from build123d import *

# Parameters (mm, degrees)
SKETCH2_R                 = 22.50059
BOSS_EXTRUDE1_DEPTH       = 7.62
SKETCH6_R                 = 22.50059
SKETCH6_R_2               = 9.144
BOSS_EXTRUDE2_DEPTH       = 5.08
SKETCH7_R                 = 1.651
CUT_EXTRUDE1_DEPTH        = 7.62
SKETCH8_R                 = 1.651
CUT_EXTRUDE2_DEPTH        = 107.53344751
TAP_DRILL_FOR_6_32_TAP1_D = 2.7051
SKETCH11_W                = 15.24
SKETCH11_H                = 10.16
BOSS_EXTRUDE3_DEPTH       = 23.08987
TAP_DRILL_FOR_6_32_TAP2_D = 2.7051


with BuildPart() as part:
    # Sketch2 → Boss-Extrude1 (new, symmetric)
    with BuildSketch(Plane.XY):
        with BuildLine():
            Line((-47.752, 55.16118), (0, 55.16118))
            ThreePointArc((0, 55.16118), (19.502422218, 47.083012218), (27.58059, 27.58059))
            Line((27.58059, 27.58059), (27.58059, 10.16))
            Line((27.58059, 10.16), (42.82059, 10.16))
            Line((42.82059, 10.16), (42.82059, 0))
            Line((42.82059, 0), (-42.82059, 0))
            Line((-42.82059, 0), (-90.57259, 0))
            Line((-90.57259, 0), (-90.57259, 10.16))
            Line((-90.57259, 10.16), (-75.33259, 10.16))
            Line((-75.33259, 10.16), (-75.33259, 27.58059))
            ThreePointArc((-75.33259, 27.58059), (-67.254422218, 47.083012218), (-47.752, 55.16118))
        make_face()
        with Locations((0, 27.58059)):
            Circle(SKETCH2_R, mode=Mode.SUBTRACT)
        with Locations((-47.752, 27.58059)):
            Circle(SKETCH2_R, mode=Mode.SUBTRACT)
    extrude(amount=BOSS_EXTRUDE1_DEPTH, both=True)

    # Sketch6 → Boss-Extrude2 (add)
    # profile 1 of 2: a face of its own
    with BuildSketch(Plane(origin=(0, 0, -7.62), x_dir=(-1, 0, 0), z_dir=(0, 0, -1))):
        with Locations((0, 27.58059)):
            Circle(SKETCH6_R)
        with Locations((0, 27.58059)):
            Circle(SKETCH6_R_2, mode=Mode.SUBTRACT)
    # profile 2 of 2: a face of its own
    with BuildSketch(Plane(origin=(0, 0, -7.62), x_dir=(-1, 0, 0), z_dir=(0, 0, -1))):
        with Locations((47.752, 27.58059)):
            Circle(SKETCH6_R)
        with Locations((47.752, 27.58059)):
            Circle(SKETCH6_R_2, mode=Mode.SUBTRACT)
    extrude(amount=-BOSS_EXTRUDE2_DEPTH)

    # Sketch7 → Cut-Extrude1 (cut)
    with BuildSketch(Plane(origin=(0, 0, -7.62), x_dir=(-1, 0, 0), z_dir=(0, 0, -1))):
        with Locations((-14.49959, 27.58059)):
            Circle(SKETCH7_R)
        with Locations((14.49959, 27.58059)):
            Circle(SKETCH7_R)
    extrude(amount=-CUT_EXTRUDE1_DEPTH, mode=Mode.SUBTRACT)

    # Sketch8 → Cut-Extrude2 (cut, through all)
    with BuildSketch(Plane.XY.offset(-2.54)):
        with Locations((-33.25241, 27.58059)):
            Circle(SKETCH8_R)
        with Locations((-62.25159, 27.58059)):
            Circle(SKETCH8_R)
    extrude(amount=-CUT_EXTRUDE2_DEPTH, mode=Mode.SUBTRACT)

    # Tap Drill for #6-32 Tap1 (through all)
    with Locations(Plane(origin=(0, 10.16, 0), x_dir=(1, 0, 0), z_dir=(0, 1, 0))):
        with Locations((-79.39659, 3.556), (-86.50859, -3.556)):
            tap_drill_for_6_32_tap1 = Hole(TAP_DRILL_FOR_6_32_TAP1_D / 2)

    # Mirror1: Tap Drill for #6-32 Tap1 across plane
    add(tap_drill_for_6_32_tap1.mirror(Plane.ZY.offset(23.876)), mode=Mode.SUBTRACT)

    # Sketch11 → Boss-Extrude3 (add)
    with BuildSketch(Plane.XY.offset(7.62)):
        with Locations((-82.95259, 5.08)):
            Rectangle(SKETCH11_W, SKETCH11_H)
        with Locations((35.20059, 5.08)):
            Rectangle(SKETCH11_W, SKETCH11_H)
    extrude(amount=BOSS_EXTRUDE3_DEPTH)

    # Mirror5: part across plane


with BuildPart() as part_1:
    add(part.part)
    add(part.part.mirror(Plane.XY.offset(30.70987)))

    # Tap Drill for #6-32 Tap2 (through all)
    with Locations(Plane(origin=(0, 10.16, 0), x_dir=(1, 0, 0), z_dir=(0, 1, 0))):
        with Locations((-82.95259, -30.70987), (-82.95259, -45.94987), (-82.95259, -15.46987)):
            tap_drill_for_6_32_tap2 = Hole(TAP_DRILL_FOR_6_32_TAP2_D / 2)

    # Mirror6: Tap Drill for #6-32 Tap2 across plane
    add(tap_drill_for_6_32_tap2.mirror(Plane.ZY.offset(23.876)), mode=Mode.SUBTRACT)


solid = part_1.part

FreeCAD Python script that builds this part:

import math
import FreeCAD as App
import Part
import Sketcher

V = App.Vector
Q = App.Units.Quantity


def add_polygon(sketch, points):
    """Adds a closed chain of lines whose ends are joined by coincident constraints."""
    first, n = sketch.GeometryCount, len(points)
    for a, b in zip(points, points[1:] + points[:1]):
        sketch.addGeometry(Part.LineSegment(App.Vector(*a, 0), App.Vector(*b, 0)), False)
    for i in range(n):
        sketch.addConstraint(Sketcher.Constraint("Coincident", first + i, 2, first + (i + 1) % n, 1))

doc = App.newDocument("Part")
body = doc.addObject("PartDesign::Body", "Body")

sketch1 = body.newObject("Sketcher::SketchObject", "Sketch")
sketch1.AttachmentSupport = (doc.getObject("XY_Plane"), [""])
sketch1.MapMode = "FlatFace"
sketch1.addGeometry([
    Part.LineSegment(V(0, 55.16118, 0), V(-47.752, 55.16118, 0)),
    Part.ArcOfCircle(Part.Circle(V(-47.752, 27.58059, 0), V(0, 0, 1), 27.58059), math.radians(90), math.radians(180)),
    Part.LineSegment(V(-75.33259, 27.58059, 0), V(-75.33259, 10.16, 0)),
    Part.LineSegment(V(-75.33259, 10.16, 0), V(-90.57259, 10.16, 0)),
    Part.LineSegment(V(-90.57259, 10.16, 0), V(-90.57259, 0, 0)),
    Part.LineSegment(V(-90.57259, 0, 0), V(42.82059, 0, 0)),
    Part.LineSegment(V(42.82059, 0, 0), V(42.82059, 10.16, 0)),
    Part.LineSegment(V(42.82059, 10.16, 0), V(27.58059, 10.16, 0)),
    Part.LineSegment(V(27.58059, 10.16, 0), V(27.58059, 27.58059, 0)),
    Part.ArcOfCircle(Part.Circle(V(0, 27.58059, 0), V(0, 0, 1), 27.58059), math.radians(0), math.radians(90)),
    Part.Circle(V(0, 27.58059, 0), V(0, 0, 1), 22.50059),
    Part.Circle(V(-47.752, 27.58059, 0), V(0, 0, 1), 22.50059),
], False)
sketch1.addConstraint([
    Sketcher.Constraint("Tangent", 0, 2, 1, 1),
    Sketcher.Constraint("Tangent", 1, 2, 2, 1),
    Sketcher.Constraint("Coincident", 2, 2, 3, 1),
    Sketcher.Constraint("Coincident", 3, 2, 4, 1),
    Sketcher.Constraint("Coincident", 4, 2, 5, 1),
    Sketcher.Constraint("Coincident", 5, 2, 6, 1),
    Sketcher.Constraint("Coincident", 6, 2, 7, 1),
    Sketcher.Constraint("Coincident", 7, 2, 8, 1),
    Sketcher.Constraint("Tangent", 8, 2, 9, 1),
    Sketcher.Constraint("Tangent", 9, 2, 0, 1),
    Sketcher.Constraint("Horizontal", 0),
    Sketcher.Constraint("Vertical", 2),
    Sketcher.Constraint("Horizontal", 3),
    Sketcher.Constraint("Vertical", 4),
    Sketcher.Constraint("Horizontal", 5),
    Sketcher.Constraint("Vertical", 6),
    Sketcher.Constraint("Horizontal", 7),
    Sketcher.Constraint("Vertical", 8),
    Sketcher.Constraint("Coincident", 10, 3, 9, 3),
    Sketcher.Constraint("Coincident", 11, 3, 1, 3),
    Sketcher.Constraint("Equal", 1, 9),
    Sketcher.Constraint("Equal", 10, 11),
    Sketcher.Constraint("PointOnObject", 9, 3, -2),
    Sketcher.Constraint("PointOnObject", 4, 2, -1),
    Sketcher.Constraint("Horizontal", 3, 2, 6, 2),
    Sketcher.Constraint("Equal", 3, 7),
    Sketcher.Constraint("DistanceX", 3, 2, 3, 1, Q("0.6 in")),
    Sketcher.Constraint("DistanceY", 4, 2, 4, 1, Q("0.4 in")),
    Sketcher.Constraint("Diameter", 10, Q("1.7717 in")),
    Sketcher.Constraint("DistanceX", 0, 2, 0, 1, Q("1.88 in")),
    Sketcher.Constraint("DistanceX", 5, 1, 5, 2, Q("5.2517 in")),
    Sketcher.Constraint("DistanceY", -1, 1, 0, 2, Q("2.1717 in")),
])
pad1 = body.newObject("PartDesign::Pad", "Pad")
pad1.Profile = sketch1
pad1.Length = Q("0.6 in")
pad1.Midplane = True

sketch2 = body.newObject("Sketcher::SketchObject", "Sketch001")
sketch2.AttachmentSupport = (doc.getObject("XY_Plane"), [""])
sketch2.MapMode = "FlatFace"
sketch2.AttachmentOffset = App.Placement(V(0, 0, -0.3 * 25.4), App.Rotation())
sketch2.addGeometry([
    Part.Circle(V(0, 27.58059, 0), V(0, 0, 1), 22.50059),
    Part.Circle(V(0, 27.58059, 0), V(0, 0, 1), 9.144),
    Part.Circle(V(-47.752, 27.58059, 0), V(0, 0, 1), 22.50059),
    Part.Circle(V(-47.752, 27.58059, 0), V(0, 0, 1), 9.144),
], False)
sketch2.addConstraint([
    Sketcher.Constraint("Coincident", 1, 3, 0, 3),
    Sketcher.Constraint("Coincident", 3, 3, 2, 3),
    Sketcher.Constraint("Equal", 0, 2),
    Sketcher.Constraint("Equal", 1, 3),
    Sketcher.Constraint("PointOnObject", 0, 3, -2),
    Sketcher.Constraint("Horizontal", 1, 3, 2, 3),
    Sketcher.Constraint("Diameter", 1, Q("0.72 in")),
    Sketcher.Constraint("Diameter", 0, Q("1.7717 in")),
    Sketcher.Constraint("DistanceX", 2, 3, -1, 1, Q("1.88 in")),
    Sketcher.Constraint("DistanceY", -1, 1, 0, 3, 27.58059),
])
pad2 = body.newObject("PartDesign::Pad", "Pad001")
pad2.Profile = sketch2
pad2.Length = Q("0.2 in")

sketch3 = body.newObject("Sketcher::SketchObject", "Sketch002")
sketch3.AttachmentSupport = (doc.getObject("XY_Plane"), [""])
sketch3.MapMode = "FlatFace"
sketch3.AttachmentOffset = App.Placement(V(0, 0, -0.3 * 25.4), App.Rotation())
sketch3.addGeometry([
    Part.Circle(V(14.49959, 27.58059, 0), V(0, 0, 1), 1.651),
    Part.Circle(V(-14.49959, 27.58059, 0), V(0, 0, 1), 1.651),
], False)
sketch3.addConstraint([
    Sketcher.Constraint("Equal", 0, 1),
    Sketcher.Constraint("Symmetric", 0, 3, 1, 3, -2),
    Sketcher.Constraint("Diameter", 0, Q("0.13 in")),
    Sketcher.Constraint("DistanceX", 1, 3, 0, 3, Q("1.1417 in")),
    Sketcher.Constraint("DistanceY", -1, 1, 0, 3, 27.58059),
])
pocket1 = body.newObject("PartDesign::Pocket", "Pocket")
pocket1.Profile = sketch3
pocket1.Length = Q("0.3 in")
pocket1.Reversed = True

sketch4 = body.newObject("Sketcher::SketchObject", "Sketch003")
sketch4.AttachmentSupport = (doc.getObject("XY_Plane"), [""])
sketch4.MapMode = "FlatFace"
sketch4.AttachmentOffset = App.Placement(V(0, 0, -0.1 * 25.4), App.Rotation())
sketch4.addGeometry([
    Part.Circle(V(-33.25241, 27.58059, 0), V(0, 0, 1), 1.651),
    Part.Circle(V(-62.25159, 27.58059, 0), V(0, 0, 1), 1.651),
], False)
sketch4.addConstraint([
    Sketcher.Constraint("Equal", 0, 1),
    Sketcher.Constraint("Horizontal", 0, 3, 1, 3),
    Sketcher.Constraint("Diameter", 0, Q("0.13 in")),
    Sketcher.Constraint("DistanceX", 1, 3, 0, 3, Q("1.1417 in")),
    Sketcher.Constraint("DistanceX", 0, 3, -1, 1, 33.25241),
    Sketcher.Constraint("DistanceY", -1, 1, 0, 3, 27.58059),
])
pocket2 = body.newObject("PartDesign::Pocket", "Pocket001")
pocket2.Profile = sketch4
pocket2.Type = "ThroughAll"

sketch5 = body.newObject("Sketcher::SketchObject", "Sketch004")
sketch5.AttachmentSupport = (doc.getObject("XZ_Plane"), [""])
sketch5.MapMode = "FlatFace"
sketch5.AttachmentOffset = App.Placement(V(0, 0, -0.4 * 25.4), App.Rotation())
sketch5.addGeometry([
    Part.Circle(V(-79.39659, -3.556, 0), V(0, 0, 1), 1.35255),
    Part.Circle(V(-86.50859, 3.556, 0), V(0, 0, 1), 1.35255),
], False)
sketch5.addConstraint([
    Sketcher.Constraint("Equal", 0, 1),
    Sketcher.Constraint("Diameter", 0, Q("0.1065 in")),
    Sketcher.Constraint("DistanceY", 0, 3, -1, 1, Q("0.14 in")),
    Sketcher.Constraint("DistanceY", -1, 1, 1, 3, Q("0.14 in")),
    Sketcher.Constraint("DistanceX", 1, 3, 0, 3, Q("0.28 in")),
    Sketcher.Constraint("DistanceX", 0, 3, -1, 1, 79.39659),
])
doc.recompute()
hole = body.newObject("PartDesign::Hole", "Hole")
hole.Profile = sketch5
hole.ThreadType = "None"
hole.Diameter = Q("0.1065 in")
hole.DepthType = "ThroughAll"
hole.Reversed = True
doc.recompute()

datumplane = body.newObject("PartDesign::Plane", "DatumPlane")
datumplane.AttachmentSupport = (doc.getObject("YZ_Plane"), [""])
datumplane.MapMode = "FlatFace"
datumplane.AttachmentOffset = App.Placement(V(0, 0, -0.94 * 25.4), App.Rotation())
mirrored = body.newObject("PartDesign::Mirrored", "Mirrored")
mirrored.Originals = [hole]
mirrored.MirrorPlane = (datumplane, [""])
body.Tip = mirrored

sketch6 = body.newObject("Sketcher::SketchObject", "Sketch005")
sketch6.AttachmentSupport = (doc.getObject("XY_Plane"), [""])
sketch6.MapMode = "FlatFace"
sketch6.AttachmentOffset = App.Placement(V(0, 0, 0.3 * 25.4), App.Rotation())
add_polygon(sketch6, [(-90.57259, 10.16), (-90.57259, 0), (-75.33259, 0), (-75.33259, 10.16)])
add_polygon(sketch6, [(27.58059, 10.16), (27.58059, 0), (42.82059, 0), (42.82059, 10.16)])
sketch6.addConstraint([
    Sketcher.Constraint("Vertical", 0),
    Sketcher.Constraint("Horizontal", 1),
    Sketcher.Constraint("Vertical", 2),
    Sketcher.Constraint("Horizontal", 3),
    Sketcher.Constraint("Vertical", 4),
    Sketcher.Constraint("Horizontal", 5),
    Sketcher.Constraint("Vertical", 6),
    Sketcher.Constraint("Horizontal", 7),
    Sketcher.Constraint("PointOnObject", 0, 2, -1),
    Sketcher.Constraint("PointOnObject", 4, 2, -1),
    Sketcher.Constraint("Horizontal", 3, 2, 6, 2),
    Sketcher.Constraint("Equal", 3, 5),
    Sketcher.Constraint("DistanceX", 1, 1, 1, 2, Q("0.6 in")),
    Sketcher.Constraint("DistanceY", 0, 2, 0, 1, Q("0.4 in")),
    Sketcher.Constraint("DistanceX", 1, 2, 4, 2, Q("4.0517 in")),
    Sketcher.Constraint("DistanceX", 0, 2, -1, 1, 90.57259),
])
pad3 = body.newObject("PartDesign::Pad", "Pad002")
pad3.Profile = sketch6
pad3.Length = 23.08987
body2 = doc.addObject("PartDesign::Body", "Body001")
doc.recompute()

body2.BaseFeature = body
doc.recompute()

mirroring = doc.addObject("Part::Mirroring", "Mirroring")
mirroring.Source = body
mirroring.Base = V(0, 0, 30.70987)
mirroring.Normal = V(0, 0, 1)
body3 = doc.addObject("PartDesign::Body", "Body002")
body3.BaseFeature = mirroring
boolean = body2.newObject("PartDesign::Boolean", "Boolean")
boolean.Type = "Fuse"
boolean.addObjects([body3])
doc.recompute()

sketch7 = body2.newObject("Sketcher::SketchObject", "Sketch006")
sketch7.AttachmentSupport = (doc.getObject("XZ_Plane001"), [""])
sketch7.MapMode = "FlatFace"
sketch7.AttachmentOffset = App.Placement(V(0, 0, -0.4 * 25.4), App.Rotation())
sketch7.addGeometry([
    Part.Circle(V(-82.95259, 30.70987, 0), V(0, 0, 1), 1.35255),
    Part.Circle(V(-82.95259, 45.94987, 0), V(0, 0, 1), 1.35255),
    Part.Circle(V(-82.95259, 15.46987, 0), V(0, 0, 1), 1.35255),
], False)
sketch7.addConstraint([
    Sketcher.Constraint("Equal", 0, 1),
    Sketcher.Constraint("Equal", 1, 2),
    Sketcher.Constraint("Vertical", 0, 3, 1, 3),
    Sketcher.Constraint("Vertical", 1, 3, 2, 3),
    Sketcher.Constraint("Diameter", 0, Q("0.1065 in")),
    Sketcher.Constraint("DistanceY", 0, 3, 1, 3, Q("0.6 in")),
    Sketcher.Constraint("DistanceY", 2, 3, 0, 3, Q("0.6 in")),
    Sketcher.Constraint("DistanceX", 0, 3, -1, 1, 82.95259),
    Sketcher.Constraint("DistanceY", -1, 1, 0, 3, 30.70987),
])
doc.recompute()
hole2 = body2.newObject("PartDesign::Hole", "Hole001")
hole2.Profile = sketch7
hole2.ThreadType = "None"
hole2.Diameter = Q("0.1065 in")
hole2.DepthType = "ThroughAll"
hole2.Reversed = True
doc.recompute()

datumplane2 = body2.newObject("PartDesign::Plane", "DatumPlane001")
datumplane2.AttachmentSupport = (doc.getObject("YZ_Plane001"), [""])
datumplane2.MapMode = "FlatFace"
datumplane2.AttachmentOffset = App.Placement(V(0, 0, -0.94 * 25.4), App.Rotation())
mirrored2 = body2.newObject("PartDesign::Mirrored", "Mirrored001")
mirrored2.Originals = [hole2]
mirrored2.MirrorPlane = (datumplane2, [""])
body2.Tip = mirrored2
mirroring.Visibility = False

doc.recompute()
